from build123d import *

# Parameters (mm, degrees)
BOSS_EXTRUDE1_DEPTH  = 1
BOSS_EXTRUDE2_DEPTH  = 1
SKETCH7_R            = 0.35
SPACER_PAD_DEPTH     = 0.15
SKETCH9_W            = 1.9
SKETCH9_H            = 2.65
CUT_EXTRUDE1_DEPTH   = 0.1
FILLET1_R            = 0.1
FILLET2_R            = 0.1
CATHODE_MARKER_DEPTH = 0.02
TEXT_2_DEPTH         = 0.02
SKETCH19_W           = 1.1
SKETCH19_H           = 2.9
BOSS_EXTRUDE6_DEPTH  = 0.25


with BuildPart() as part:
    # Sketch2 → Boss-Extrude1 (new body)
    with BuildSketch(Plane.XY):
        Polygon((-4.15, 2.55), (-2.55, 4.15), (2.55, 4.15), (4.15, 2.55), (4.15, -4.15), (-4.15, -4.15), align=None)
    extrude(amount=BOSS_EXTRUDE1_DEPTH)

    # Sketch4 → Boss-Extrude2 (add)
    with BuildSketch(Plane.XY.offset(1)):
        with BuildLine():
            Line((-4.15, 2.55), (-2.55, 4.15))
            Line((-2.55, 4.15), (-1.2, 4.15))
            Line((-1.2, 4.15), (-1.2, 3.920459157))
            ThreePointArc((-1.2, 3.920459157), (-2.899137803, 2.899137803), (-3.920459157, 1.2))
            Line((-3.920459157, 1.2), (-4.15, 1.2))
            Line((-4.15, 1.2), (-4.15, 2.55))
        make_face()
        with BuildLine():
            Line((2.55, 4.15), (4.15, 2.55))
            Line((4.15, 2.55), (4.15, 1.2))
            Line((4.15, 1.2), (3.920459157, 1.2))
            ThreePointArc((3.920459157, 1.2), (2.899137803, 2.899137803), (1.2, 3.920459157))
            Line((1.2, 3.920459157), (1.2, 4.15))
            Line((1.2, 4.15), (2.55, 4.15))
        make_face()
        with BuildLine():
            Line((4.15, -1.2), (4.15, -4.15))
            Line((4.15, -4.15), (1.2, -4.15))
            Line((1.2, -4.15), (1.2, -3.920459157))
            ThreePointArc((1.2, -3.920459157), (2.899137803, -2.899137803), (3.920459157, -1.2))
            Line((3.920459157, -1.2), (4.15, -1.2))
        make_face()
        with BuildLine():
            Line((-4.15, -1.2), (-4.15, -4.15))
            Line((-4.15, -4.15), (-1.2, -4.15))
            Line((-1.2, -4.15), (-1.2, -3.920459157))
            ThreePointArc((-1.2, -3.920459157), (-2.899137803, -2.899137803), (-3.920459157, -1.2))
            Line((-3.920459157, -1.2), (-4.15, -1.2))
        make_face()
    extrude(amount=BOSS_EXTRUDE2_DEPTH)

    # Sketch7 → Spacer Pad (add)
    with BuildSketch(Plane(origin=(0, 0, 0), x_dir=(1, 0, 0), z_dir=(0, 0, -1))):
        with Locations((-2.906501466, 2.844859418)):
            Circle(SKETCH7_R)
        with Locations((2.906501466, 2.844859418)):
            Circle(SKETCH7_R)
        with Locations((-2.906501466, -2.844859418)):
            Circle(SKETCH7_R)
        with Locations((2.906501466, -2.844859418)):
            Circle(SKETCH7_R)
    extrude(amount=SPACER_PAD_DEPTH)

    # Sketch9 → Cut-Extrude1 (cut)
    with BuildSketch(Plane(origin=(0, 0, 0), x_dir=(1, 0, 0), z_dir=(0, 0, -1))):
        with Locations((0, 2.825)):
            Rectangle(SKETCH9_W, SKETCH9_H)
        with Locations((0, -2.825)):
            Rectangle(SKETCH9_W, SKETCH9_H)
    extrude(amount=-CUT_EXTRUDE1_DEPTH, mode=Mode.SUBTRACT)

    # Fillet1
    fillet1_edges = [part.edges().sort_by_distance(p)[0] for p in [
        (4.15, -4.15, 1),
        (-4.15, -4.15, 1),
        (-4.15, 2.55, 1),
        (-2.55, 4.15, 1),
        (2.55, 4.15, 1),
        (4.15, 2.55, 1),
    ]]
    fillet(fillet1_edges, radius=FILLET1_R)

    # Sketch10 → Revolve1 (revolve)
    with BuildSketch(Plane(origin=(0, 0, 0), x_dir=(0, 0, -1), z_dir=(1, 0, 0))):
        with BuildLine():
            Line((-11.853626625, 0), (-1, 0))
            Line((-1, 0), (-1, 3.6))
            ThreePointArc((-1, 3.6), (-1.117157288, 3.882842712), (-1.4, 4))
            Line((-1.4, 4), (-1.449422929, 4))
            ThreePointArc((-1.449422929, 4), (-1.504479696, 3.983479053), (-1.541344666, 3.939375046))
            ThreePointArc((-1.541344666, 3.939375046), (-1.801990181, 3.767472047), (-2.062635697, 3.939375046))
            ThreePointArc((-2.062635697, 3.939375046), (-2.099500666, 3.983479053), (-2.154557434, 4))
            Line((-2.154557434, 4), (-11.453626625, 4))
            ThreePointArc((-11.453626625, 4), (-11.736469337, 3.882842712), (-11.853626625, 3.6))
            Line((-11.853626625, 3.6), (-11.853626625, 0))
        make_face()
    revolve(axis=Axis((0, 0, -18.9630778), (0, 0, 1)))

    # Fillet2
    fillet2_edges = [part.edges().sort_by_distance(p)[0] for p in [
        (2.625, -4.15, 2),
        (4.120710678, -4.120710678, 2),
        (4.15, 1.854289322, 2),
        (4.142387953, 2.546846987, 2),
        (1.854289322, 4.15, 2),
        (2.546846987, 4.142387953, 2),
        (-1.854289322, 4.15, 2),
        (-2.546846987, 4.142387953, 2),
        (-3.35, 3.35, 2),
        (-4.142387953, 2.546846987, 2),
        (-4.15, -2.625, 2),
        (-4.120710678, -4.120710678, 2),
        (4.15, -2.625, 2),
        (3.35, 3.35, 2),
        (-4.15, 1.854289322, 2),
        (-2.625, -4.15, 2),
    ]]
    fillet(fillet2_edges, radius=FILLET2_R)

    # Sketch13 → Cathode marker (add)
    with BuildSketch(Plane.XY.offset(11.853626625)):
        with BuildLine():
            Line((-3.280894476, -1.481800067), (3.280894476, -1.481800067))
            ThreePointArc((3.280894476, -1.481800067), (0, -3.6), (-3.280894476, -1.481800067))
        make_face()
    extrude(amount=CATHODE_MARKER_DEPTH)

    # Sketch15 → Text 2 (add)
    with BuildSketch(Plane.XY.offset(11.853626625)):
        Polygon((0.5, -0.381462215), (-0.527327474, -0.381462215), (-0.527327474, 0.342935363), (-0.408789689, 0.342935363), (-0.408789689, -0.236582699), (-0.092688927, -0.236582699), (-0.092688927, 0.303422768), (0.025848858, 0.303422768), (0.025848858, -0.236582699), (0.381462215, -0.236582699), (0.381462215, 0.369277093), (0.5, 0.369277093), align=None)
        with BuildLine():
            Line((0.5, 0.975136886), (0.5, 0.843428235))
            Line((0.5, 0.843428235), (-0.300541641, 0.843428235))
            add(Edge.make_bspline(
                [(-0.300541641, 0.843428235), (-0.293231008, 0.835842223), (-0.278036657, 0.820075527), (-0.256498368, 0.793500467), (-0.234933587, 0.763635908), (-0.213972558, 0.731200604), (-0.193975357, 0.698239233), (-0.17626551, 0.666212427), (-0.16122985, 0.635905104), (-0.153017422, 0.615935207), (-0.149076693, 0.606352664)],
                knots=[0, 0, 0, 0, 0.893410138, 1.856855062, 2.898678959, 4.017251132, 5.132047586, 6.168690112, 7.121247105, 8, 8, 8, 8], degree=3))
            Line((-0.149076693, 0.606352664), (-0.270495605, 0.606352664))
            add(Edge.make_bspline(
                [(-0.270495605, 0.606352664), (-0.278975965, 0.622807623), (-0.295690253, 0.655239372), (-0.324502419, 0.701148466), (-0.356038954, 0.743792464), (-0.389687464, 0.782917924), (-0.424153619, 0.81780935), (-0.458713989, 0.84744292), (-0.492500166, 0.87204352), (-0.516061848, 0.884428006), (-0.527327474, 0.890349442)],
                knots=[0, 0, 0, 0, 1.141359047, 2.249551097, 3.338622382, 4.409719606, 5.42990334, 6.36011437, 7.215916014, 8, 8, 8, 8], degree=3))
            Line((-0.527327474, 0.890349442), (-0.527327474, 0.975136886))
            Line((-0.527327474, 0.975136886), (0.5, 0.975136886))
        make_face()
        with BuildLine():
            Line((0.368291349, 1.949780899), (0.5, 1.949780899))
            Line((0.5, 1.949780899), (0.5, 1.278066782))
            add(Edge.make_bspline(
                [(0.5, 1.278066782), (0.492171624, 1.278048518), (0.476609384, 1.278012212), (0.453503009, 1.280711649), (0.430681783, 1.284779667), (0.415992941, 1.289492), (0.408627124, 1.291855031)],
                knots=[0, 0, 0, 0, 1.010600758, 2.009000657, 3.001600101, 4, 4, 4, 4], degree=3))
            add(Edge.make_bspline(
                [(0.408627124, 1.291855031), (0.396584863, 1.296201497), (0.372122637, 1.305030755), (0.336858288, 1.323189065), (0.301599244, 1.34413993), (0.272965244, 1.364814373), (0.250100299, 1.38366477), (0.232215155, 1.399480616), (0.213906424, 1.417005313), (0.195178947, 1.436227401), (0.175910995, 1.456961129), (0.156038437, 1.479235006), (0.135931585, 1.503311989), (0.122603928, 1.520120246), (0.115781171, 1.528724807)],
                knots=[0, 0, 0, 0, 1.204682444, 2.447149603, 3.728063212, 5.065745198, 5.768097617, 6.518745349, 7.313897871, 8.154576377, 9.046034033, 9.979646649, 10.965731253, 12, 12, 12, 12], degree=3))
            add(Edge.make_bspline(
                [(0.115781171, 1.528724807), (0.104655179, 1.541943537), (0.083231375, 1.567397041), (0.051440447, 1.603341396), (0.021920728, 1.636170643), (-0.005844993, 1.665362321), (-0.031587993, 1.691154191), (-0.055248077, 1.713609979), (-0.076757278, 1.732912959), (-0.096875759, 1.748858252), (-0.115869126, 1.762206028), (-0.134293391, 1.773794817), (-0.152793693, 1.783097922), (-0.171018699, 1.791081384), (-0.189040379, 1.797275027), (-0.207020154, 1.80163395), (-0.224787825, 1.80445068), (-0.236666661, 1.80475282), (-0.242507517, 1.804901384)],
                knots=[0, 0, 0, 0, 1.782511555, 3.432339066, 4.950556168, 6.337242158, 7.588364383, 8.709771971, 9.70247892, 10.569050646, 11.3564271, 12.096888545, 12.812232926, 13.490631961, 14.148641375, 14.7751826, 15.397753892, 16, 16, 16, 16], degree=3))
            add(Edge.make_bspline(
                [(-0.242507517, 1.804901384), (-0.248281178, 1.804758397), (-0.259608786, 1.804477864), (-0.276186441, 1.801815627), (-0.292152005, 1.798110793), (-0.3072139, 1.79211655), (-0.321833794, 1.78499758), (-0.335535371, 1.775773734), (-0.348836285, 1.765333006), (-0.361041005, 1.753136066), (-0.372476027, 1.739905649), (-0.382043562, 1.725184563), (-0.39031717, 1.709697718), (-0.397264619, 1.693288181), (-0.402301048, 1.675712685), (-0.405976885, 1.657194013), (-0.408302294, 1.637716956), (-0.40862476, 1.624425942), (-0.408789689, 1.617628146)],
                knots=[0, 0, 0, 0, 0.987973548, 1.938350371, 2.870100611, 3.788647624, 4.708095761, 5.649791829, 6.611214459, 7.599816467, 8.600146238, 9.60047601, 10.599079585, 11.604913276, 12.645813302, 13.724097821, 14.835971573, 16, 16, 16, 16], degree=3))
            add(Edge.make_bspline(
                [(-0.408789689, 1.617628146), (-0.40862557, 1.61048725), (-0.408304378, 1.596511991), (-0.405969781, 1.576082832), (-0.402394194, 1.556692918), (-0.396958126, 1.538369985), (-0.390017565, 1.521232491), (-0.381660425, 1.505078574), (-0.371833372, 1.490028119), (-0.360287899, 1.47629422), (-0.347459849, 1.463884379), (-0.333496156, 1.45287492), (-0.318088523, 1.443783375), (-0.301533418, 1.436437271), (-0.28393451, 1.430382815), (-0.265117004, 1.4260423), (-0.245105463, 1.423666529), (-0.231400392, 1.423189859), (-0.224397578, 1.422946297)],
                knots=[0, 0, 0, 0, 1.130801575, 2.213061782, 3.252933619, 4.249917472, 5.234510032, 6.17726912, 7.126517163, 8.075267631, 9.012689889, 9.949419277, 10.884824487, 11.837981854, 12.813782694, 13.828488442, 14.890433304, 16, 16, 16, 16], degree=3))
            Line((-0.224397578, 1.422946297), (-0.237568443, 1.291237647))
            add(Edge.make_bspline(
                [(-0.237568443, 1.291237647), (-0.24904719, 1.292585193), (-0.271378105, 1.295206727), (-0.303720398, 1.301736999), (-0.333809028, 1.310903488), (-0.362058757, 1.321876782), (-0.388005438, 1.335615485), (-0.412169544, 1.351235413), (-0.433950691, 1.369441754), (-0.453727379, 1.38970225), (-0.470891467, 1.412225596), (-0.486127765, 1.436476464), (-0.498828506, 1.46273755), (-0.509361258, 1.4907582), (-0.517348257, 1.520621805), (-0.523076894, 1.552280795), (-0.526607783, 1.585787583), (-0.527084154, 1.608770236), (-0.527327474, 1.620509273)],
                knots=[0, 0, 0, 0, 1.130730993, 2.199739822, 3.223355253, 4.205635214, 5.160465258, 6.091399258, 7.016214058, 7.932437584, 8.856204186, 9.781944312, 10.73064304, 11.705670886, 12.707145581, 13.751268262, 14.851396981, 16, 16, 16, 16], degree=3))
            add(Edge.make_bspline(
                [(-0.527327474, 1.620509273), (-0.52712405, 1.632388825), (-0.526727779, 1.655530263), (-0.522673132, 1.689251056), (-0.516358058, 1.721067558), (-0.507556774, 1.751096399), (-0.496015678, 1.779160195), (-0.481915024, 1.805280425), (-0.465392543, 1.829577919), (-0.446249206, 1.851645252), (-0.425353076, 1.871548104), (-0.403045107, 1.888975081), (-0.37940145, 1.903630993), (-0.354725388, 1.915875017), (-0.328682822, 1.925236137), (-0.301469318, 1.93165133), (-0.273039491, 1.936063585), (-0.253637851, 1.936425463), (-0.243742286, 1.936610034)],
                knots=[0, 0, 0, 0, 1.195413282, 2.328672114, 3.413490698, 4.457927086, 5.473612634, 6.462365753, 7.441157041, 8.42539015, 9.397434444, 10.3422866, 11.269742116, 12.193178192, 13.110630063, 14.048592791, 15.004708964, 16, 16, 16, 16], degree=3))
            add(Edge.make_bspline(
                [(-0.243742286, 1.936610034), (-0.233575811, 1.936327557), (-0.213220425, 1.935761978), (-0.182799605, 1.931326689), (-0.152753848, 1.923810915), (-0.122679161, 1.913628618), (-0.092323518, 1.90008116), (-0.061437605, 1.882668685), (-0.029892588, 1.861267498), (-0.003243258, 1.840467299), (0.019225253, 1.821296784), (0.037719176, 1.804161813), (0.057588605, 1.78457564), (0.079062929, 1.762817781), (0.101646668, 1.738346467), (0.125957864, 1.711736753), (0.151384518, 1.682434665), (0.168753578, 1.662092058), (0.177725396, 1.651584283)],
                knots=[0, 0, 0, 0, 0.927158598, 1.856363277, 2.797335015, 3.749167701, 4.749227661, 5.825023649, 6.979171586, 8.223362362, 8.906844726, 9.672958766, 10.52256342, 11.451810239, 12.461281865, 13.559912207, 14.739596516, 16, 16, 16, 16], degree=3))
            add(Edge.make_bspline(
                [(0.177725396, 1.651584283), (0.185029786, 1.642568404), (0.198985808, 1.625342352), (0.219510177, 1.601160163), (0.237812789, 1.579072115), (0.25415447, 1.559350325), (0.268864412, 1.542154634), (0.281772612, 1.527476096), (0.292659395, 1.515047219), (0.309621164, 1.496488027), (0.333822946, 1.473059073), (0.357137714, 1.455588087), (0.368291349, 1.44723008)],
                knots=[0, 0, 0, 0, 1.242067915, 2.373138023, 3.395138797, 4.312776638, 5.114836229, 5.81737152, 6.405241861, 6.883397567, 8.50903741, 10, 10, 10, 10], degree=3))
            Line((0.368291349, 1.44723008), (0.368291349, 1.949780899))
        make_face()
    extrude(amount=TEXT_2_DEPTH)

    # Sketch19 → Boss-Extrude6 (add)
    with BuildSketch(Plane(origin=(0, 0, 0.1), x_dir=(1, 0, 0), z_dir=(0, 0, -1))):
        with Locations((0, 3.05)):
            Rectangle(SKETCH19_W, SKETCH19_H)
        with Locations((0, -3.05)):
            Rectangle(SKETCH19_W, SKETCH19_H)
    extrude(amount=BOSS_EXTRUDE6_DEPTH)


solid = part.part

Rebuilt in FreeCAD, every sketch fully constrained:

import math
import FreeCAD as App
import Part
import Sketcher

V = App.Vector
Q = App.Units.Quantity


def edges_at(feature, points):
    """Names of the edges that pass closest to the given points."""
    edges = feature.Shape.Edges
    near = lambda p: min(range(len(edges)), key=lambda i: edges[i].distToShape(Part.Vertex(*p))[0])
    return sorted({f"Edge{near(p) + 1}" for p in points})

doc = App.newDocument("Part")
body = doc.addObject("PartDesign::Body", "Body")

sketch1 = doc.addObject("Sketcher::SketchObject", "Sketch")
body.addObject(sketch1)
sketch1.AttachmentSupport = (doc.XY_Plane, [""])
sketch1.MapMode = "FlatFace"
sketch1.addGeometry([
    Part.LineSegment(V(-2.5, 4.2, 0), V(-4.2, 2.5, 0)),
    Part.LineSegment(V(-4.2, 2.5, 0), V(-4.2, -4.2, 0)),
    Part.LineSegment(V(-4.2, -4.2, 0), V(4.2, -4.2, 0)),
    Part.LineSegment(V(4.2, -4.2, 0), V(4.2, 2.5, 0)),
    Part.LineSegment(V(4.2, 2.5, 0), V(2.5, 4.2, 0)),
    Part.LineSegment(V(2.5, 4.2, 0), V(-2.5, 4.2, 0)),
], False)
sketch1.addConstraint([
    Sketcher.Constraint("Coincident", 0, 2, 1, 1),
    Sketcher.Constraint("Coincident", 1, 2, 2, 1),
    Sketcher.Constraint("Coincident", 2, 2, 3, 1),
    Sketcher.Constraint("Coincident", 3, 2, 4, 1),
    Sketcher.Constraint("Coincident", 4, 2, 5, 1),
    Sketcher.Constraint("Coincident", 5, 2, 0, 1),
    Sketcher.Constraint("Vertical", 1),
    Sketcher.Constraint("Horizontal", 2),
    Sketcher.Constraint("Vertical", 3),
    Sketcher.Constraint("Horizontal", 5),
    Sketcher.Constraint("Symmetric", 0, 2, 3, 2, -2),
    Sketcher.Constraint("Perpendicular", 0, 4),
    Sketcher.Constraint("Equal", 0, 4),
    Sketcher.Constraint("DistanceX", 2, 1, 2, 2, Q("8.3 mm")),
    Sketcher.Constraint("DistanceX", 5, 2, 5, 1, Q("5.1 mm")),
    Sketcher.Constraint("DistanceY", 1, 2, 1, 1, Q("6.7 mm")),
    Sketcher.Constraint("DistanceY", -1, 1, 0, 2, Q("2.55 mm")),
])
pad1 = doc.addObject("PartDesign::Pad", "Pad")
body.addObject(pad1)
pad1.Profile = sketch1
pad1.Length = 1

sketch2 = doc.addObject("Sketcher::SketchObject", "Sketch001")
body.addObject(sketch2)
sketch2.AttachmentSupport = (doc.XY_Plane, [""])
sketch2.MapMode = "FlatFace"
sketch2.AttachmentOffset = App.Placement(V(0, 0, 1), App.Rotation())
sketch2.addGeometry([
    Part.LineSegment(V(-2.55, 4.15, 0), V(-4.15, 2.55, 0)),
    Part.LineSegment(V(-4.15, 2.55, 0), V(-4.15, 1.2, 0)),
    Part.LineSegment(V(-4.15, 1.2, 0), V(-3.92, 1.2, 0)),
    Part.ArcOfCircle(Part.Circle(V(0, 0, 0), V(0, 0, 1), 4.1), math.radians(107), math.radians(163)),
    Part.LineSegment(V(-1.2, 3.92, 0), V(-1.2, 4.15, 0)),
    Part.LineSegment(V(-1.2, 4.15, 0), V(-2.55, 4.15, 0)),
    Part.LineSegment(V(4.15, 2.55, 0), V(2.55, 4.15, 0)),
    Part.LineSegment(V(2.55, 4.15, 0), V(1.2, 4.15, 0)),
    Part.LineSegment(V(1.2, 4.15, 0), V(1.2, 3.92, 0)),
    Part.ArcOfCircle(Part.Circle(V(0, 0, 0), V(0, 0, 1), 4.1), math.radians(17), math.radians(73)),
    Part.LineSegment(V(3.92, 1.2, 0), V(4.15, 1.2, 0)),
    Part.LineSegment(V(4.15, 1.2, 0), V(4.15, 2.55, 0)),
    Part.LineSegment(V(4.15, -4.15, 0), V(4.15, -1.2, 0)),
    Part.LineSegment(V(4.15, -1.2, 0), V(3.92, -1.2, 0)),
    Part.ArcOfCircle(Part.Circle(V(0, 0, 0), V(0, 0, 1), 4.1), math.radians(-73), math.radians(-17)),
    Part.LineSegment(V(1.2, -3.92, 0), V(1.2, -4.15, 0)),
    Part.LineSegment(V(1.2, -4.15, 0), V(4.15, -4.15, 0)),
    Part.LineSegment(V(-4.15, -1.2, 0), V(-4.15, -4.15, 0)),
    Part.LineSegment(V(-4.15, -4.15, 0), V(-1.2, -4.15, 0)),
    Part.LineSegment(V(-1.2, -4.15, 0), V(-1.2, -3.92, 0)),
    Part.ArcOfCircle(Part.Circle(V(0, 0, 0), V(0, 0, 1), 4.1), math.radians(-163), math.radians(-107)),
    Part.LineSegment(V(-3.92, -1.2, 0), V(-4.15, -1.2, 0)),
], False)
sketch2.addConstraint([
    Sketcher.Constraint("Coincident", 0, 2, 1, 1),
    Sketcher.Constraint("Coincident", 1, 2, 2, 1),
    Sketcher.Constraint("Coincident", 2, 2, 3, 2),
    Sketcher.Constraint("Coincident", 3, 1, 4, 1),
    Sketcher.Constraint("Coincident", 4, 2, 5, 1),
    Sketcher.Constraint("Coincident", 5, 2, 0, 1),
    Sketcher.Constraint("Coincident", 6, 2, 7, 1),
    Sketcher.Constraint("Coincident", 7, 2, 8, 1),
    Sketcher.Constraint("Coincident", 8, 2, 9, 2),
    Sketcher.Constraint("Coincident", 9, 1, 10, 1),
    Sketcher.Constraint("Coincident", 10, 2, 11, 1),
    Sketcher.Constraint("Coincident", 11, 2, 6, 1),
    Sketcher.Constraint("Coincident", 12, 2, 13, 1),
    Sketcher.Constraint("Coincident", 13, 2, 14, 2),
    Sketcher.Constraint("Coincident", 14, 1, 15, 1),
    Sketcher.Constraint("Coincident", 15, 2, 16, 1),
    Sketcher.Constraint("Coincident", 16, 2, 12, 1),
    Sketcher.Constraint("Coincident", 17, 2, 18, 1),
    Sketcher.Constraint("Coincident", 18, 2, 19, 1),
    Sketcher.Constraint("Coincident", 19, 2, 20, 2),
    Sketcher.Constraint("Coincident", 20, 1, 21, 1),
    Sketcher.Constraint("Coincident", 21, 2, 17, 1),
    Sketcher.Constraint("Vertical", 1),
    Sketcher.Constraint("Horizontal", 2),
    Sketcher.Constraint("Vertical", 4),
    Sketcher.Constraint("Horizontal", 5),
    Sketcher.Constraint("Horizontal", 7),
    Sketcher.Constraint("Vertical", 8),
    Sketcher.Constraint("Horizontal", 10),
    Sketcher.Constraint("Vertical", 11),
    Sketcher.Constraint("Vertical", 12),
    Sketcher.Constraint("Horizontal", 13),
    Sketcher.Constraint("Vertical", 15),
    Sketcher.Constraint("Horizontal", 16),
    Sketcher.Constraint("Vertical", 17),
    Sketcher.Constraint("Horizontal", 18),
    Sketcher.Constraint("Vertical", 19),
    Sketcher.Constraint("Horizontal", 21),
    Sketcher.Constraint("Coincident", 3, 3, -1, 1),
    Sketcher.Constraint("Coincident", 9, 3, -1, 1),
    Sketcher.Constraint("Coincident", 14, 3, -1, 1),
    Sketcher.Constraint("Coincident", 20, 3, -1, 1),
    Sketcher.Constraint("Equal", 3, 9),
    Sketcher.Constraint("Equal", 9, 14),
    Sketcher.Constraint("Equal", 14, 20),
    Sketcher.Constraint("Symmetric", 1, 2, 12, 2, -1, 1),
    Sketcher.Constraint("Symmetric", 4, 2, 15, 2, -1, 1),
    Sketcher.Constraint("Symmetric", 7, 2, 18, 2, -1, 1),
    Sketcher.Constraint("Symmetric", 10, 2, 21, 2, -1, 1),
    Sketcher.Constraint("Symmetric", 5, 2, 6, 2, -2),
    Sketcher.Constraint("Symmetric", 1, 2, 10, 2, -2),
    Sketcher.Constraint("Perpendicular", 0, 6),
    Sketcher.Constraint("Horizontal", 3, 1, 8, 2),
    Sketcher.Constraint("Horizontal", 0, 2, 11, 2),
    Sketcher.Constraint("Equal", 7, 1),
    Sketcher.Constraint("Equal", 21, 4),
    Sketcher.Constraint("Radius", 3, Q("4.1 mm")),
    Sketcher.Constraint("DistanceX", 5, 2, 5, 1, Q("1.35 mm")),
    Sketcher.Constraint("DistanceX", 16, 1, 16, 2, Q("2.95 mm")),
    Sketcher.Constraint("DistanceY", -1, 1, 1, 2, Q("1.2 mm")),
])
pad2 = doc.addObject("PartDesign::Pad", "Pad001")
body.addObject(pad2)
pad2.Profile = sketch2
pad2.Length = 1

sketch3 = doc.addObject("Sketcher::SketchObject", "Sketch002")
body.addObject(sketch3)
sketch3.AttachmentSupport = (doc.XY_Plane, [""])
sketch3.MapMode = "FlatFace"
sketch3.addGeometry([
    Part.Circle(V(-2.91, -2.84, 0), V(0, 0, 1), 0.35),
    Part.Circle(V(2.91, -2.84, 0), V(0, 0, 1), 0.35),
    Part.Circle(V(-2.91, 2.84, 0), V(0, 0, 1), 0.35),
    Part.Circle(V(2.91, 2.84, 0), V(0, 0, 1), 0.35),
], False)
sketch3.addConstraint([
    Sketcher.Constraint("Equal", 0, 1),
    Sketcher.Constraint("Equal", 1, 2),
    Sketcher.Constraint("Equal", 2, 3),
    Sketcher.Constraint("Symmetric", 1, 3, 2, 3, -1, 1),
    Sketcher.Constraint("Symmetric", 0, 3, 3, 3, -1, 1),
    Sketcher.Constraint("Symmetric", 0, 3, 1, 3, -2),
    Sketcher.Constraint("Diameter", 0, Q("0.7 mm")),
    Sketcher.Constraint("DistanceX", 0, 3, -1, 1, Q("2.906501 mm")),
    Sketcher.Constraint("DistanceY", 0, 3, -1, 1, Q("2.844859 mm")),
])
pad3 = doc.addObject("PartDesign::Pad", "Pad002")
body.addObject(pad3)
pad3.Profile = sketch3
pad3.Length = 0.15
pad3.Reversed = True

sketch4 = doc.addObject("Sketcher::SketchObject", "Sketch003")
body.addObject(sketch4)
sketch4.AttachmentSupport = (doc.XY_Plane, [""])
sketch4.MapMode = "FlatFace"
sketch4.addGeometry([
    Part.LineSegment(V(-0.9, -4.2, 0), V(-0.9, -1.5, 0)),
    Part.LineSegment(V(-0.9, -1.5, 0), V(0.9, -1.5, 0)),
    Part.LineSegment(V(0.9, -1.5, 0), V(0.9, -4.2, 0)),
    Part.LineSegment(V(0.9, -4.2, 0), V(-0.9, -4.2, 0)),
    Part.LineSegment(V(-0.9, 1.5, 0), V(-0.9, 4.2, 0)),
    Part.LineSegment(V(-0.9, 4.2, 0), V(0.9, 4.2, 0)),
    Part.LineSegment(V(0.9, 4.2, 0), V(0.9, 1.5, 0)),
    Part.LineSegment(V(0.9, 1.5, 0), V(-0.9, 1.5, 0)),
], False)
sketch4.addConstraint([
    Sketcher.Constraint("Coincident", 0, 2, 1, 1),
    Sketcher.Constraint("Coincident", 1, 2, 2, 1),
    Sketcher.Constraint("Coincident", 2, 2, 3, 1),
    Sketcher.Constraint("Coincident", 3, 2, 0, 1),
    Sketcher.Constraint("Coincident", 4, 2, 5, 1),
    Sketcher.Constraint("Coincident", 5, 2, 6, 1),
    Sketcher.Constraint("Coincident", 6, 2, 7, 1),
    Sketcher.Constraint("Coincident", 7, 2, 4, 1),
    Sketcher.Constraint("Vertical", 0),
    Sketcher.Constraint("Horizontal", 1),
    Sketcher.Constraint("Vertical", 2),
    Sketcher.Constraint("Horizontal", 3),
    Sketcher.Constraint("Vertical", 4),
    Sketcher.Constraint("Horizontal", 5),
    Sketcher.Constraint("Vertical", 6),
    Sketcher.Constraint("Horizontal", 7),
    Sketcher.Constraint("Symmetric", 2, 2, 4, 2, -1, 1),
    Sketcher.Constraint("Symmetric", 0, 2, 6, 2, -1, 1),
    Sketcher.Constraint("Vertical", 3, 2, 4, 2),
    Sketcher.Constraint("DistanceX", 1, 1, 1, 2, Q("1.9 mm")),
    Sketcher.Constraint("DistanceY", 1, 2, 6, 2, Q("3 mm")),
    Sketcher.Constraint("DistanceY", 0, 1, 0, 2, Q("2.65 mm")),
])
pocket1 = doc.addObject("PartDesign::Pocket", "Pocket")
body.addObject(pocket1)
pocket1.Profile = sketch4
pocket1.Length = 0.1
pocket1.Reversed = True
doc.recompute()

fillet = doc.addObject("PartDesign::Fillet", "Fillet")
body.addObject(fillet)
fillet.Base = (pocket1, edges_at(pocket1, [
    (4.15, -4.15, 1),
    (-4.15, -4.15, 1),
    (-4.15, 2.55, 1),
    (-2.55, 4.15, 1),
    (2.55, 4.15, 1),
    (4.15, 2.55, 1),
]))
fillet.Radius = 0.1

sketch5 = doc.addObject("Sketcher::SketchObject", "Sketch004")
body.addObject(sketch5)
sketch5.AttachmentSupport = (doc.YZ_Plane, [""])
sketch5.MapMode = "FlatFace"
sketch5.addGeometry([
    Part.LineSegment(V(0, 11.854, 0), V(0, 1, 0)),
    Part.LineSegment(V(0, 1, 0), V(3.6, 1, 0)),
    Part.ArcOfCircle(Part.Circle(V(3.6, 1.4, 0), V(0, 0, 1), 0.4), math.radians(-90), math.radians(0)),
    Part.LineSegment(V(4, 1.4, 0), V(4, 1.449, 0)),
    Part.ArcOfCircle(Part.Circle(V(3.9, 1.449, 0), V(0, 0, 1), 0.1), math.radians(0), math.radians(67)),
    Part.ArcOfCircle(Part.Circle(V(4.051, 1.802, 0), V(0, 0, 1), 0.284), math.radians(113), math.radians(247)),
    Part.ArcOfCircle(Part.Circle(V(3.9, 2.155, 0), V(0, 0, 1), 0.1), math.radians(-67), math.radians(0)),
    Part.LineSegment(V(4, 2.155, 0), V(4, 11.454, 0)),
    Part.ArcOfCircle(Part.Circle(V(3.6, 11.454, 0), V(0, 0, 1), 0.4), math.radians(0), math.radians(90)),
    Part.LineSegment(V(3.6, 11.854, 0), V(0, 11.854, 0)),
], False)
sketch5.addConstraint([
    Sketcher.Constraint("Coincident", 0, 2, 1, 1),
    Sketcher.Constraint("Tangent", 1, 2, 2, 1),
    Sketcher.Constraint("Tangent", 2, 2, 3, 1),
    Sketcher.Constraint("Tangent", 3, 2, 4, 1),
    Sketcher.Constraint("Tangent", 4, 2, 5, 2),
    Sketcher.Constraint("Tangent", 5, 1, 6, 1),
    Sketcher.Constraint("Tangent", 6, 2, 7, 1),
    Sketcher.Constraint("Tangent", 7, 2, 8, 1),
    Sketcher.Constraint("Tangent", 8, 2, 9, 1),
    Sketcher.Constraint("Coincident", 9, 2, 0, 1),
    Sketcher.Constraint("Vertical", 0),
    Sketcher.Constraint("Horizontal", 1),
    Sketcher.Constraint("Vertical", 3),
    Sketcher.Constraint("Vertical", 7),
    Sketcher.Constraint("Horizontal", 9),
    Sketcher.Constraint("Equal", 4, 6),
    Sketcher.Constraint("Equal", 2, 8),
    Sketcher.Constraint("PointOnObject", 0, 2, -2),
    Sketcher.Constraint("Vertical", 4, 3, 6, 3),
    Sketcher.Constraint("Radius", 2, Q("0.4 mm")),
    Sketcher.Constraint("Radius", 4, Q("0.1 mm")),
    Sketcher.Constraint("DistanceX", 1, 1, 1, 2, Q("3.6 mm")),
    Sketcher.Constraint("DistanceY", -1, 1, 0, 2, Q("1 mm")),
    Sketcher.Constraint("Radius", 5, Q("0.283552 mm")),
    Sketcher.Constraint("DistanceY", 7, 1, 7, 2, Q("9.299069 mm")),
    Sketcher.Constraint("DistanceY", 0, 2, 0, 1, Q("10.853627 mm")),
    Sketcher.Constraint("DistanceY", 3, 1, 3, 2, Q("0.049423 mm")),
])
revolution = doc.addObject("PartDesign::Revolution", "Revolution")
body.addObject(revolution)
revolution.Profile = sketch5
revolution.ReferenceAxis = (sketch5, ["V_Axis"])
revolution.Angle = 360
doc.recompute()

fillet2 = doc.addObject("PartDesign::Fillet", "Fillet001")
body.addObject(fillet2)
fillet2.Base = (revolution, edges_at(revolution, [
    (2.625, -4.15, 2),
    (4.121, -4.121, 2),
    (4.15, 1.854, 2),
    (4.142, 2.547, 2),
    (1.854, 4.15, 2),
    (2.547, 4.142, 2),
    (-1.854, 4.15, 2),
    (-2.547, 4.142, 2),
    (-3.35, 3.35, 2),
    (-4.142, 2.547, 2),
    (-4.15, -2.625, 2),
    (-4.121, -4.121, 2),
    (4.15, -2.625, 2),
    (3.35, 3.35, 2),
    (-4.15, 1.854, 2),
    (-2.625, -4.15, 2),
]))
fillet2.Radius = 0.1

sketch6 = doc.addObject("Sketcher::SketchObject", "Sketch005")
body.addObject(sketch6)
sketch6.AttachmentSupport = (doc.XY_Plane, [""])
sketch6.MapMode = "FlatFace"
sketch6.AttachmentOffset = App.Placement(V(0, 0, 11.853627), App.Rotation())
sketch6.addGeometry([
    Part.LineSegment(V(3.3, -1.5, 0), V(-3.3, -1.5, 0)),
    Part.ArcOfCircle(Part.Circle(V(0, 0, 0), V(0, 0, 1), 3.6), math.radians(-156), math.radians(-24)),
], False)
sketch6.addConstraint([
    Sketcher.Constraint("Coincident", 0, 1, 1, 2),
    Sketcher.Constraint("Coincident", 1, 1, 0, 2),
    Sketcher.Constraint("Horizontal", 0),
    Sketcher.Constraint("Coincident", 1, 3, -1, 1),
    Sketcher.Constraint("Radius", 1, Q("3.6 mm")),
    Sketcher.Constraint("DistanceX", 0, 2, 0, 1, Q("6.561789 mm")),
])
pad4 = doc.addObject("PartDesign::Pad", "Pad003")
body.addObject(pad4)
pad4.Profile = sketch6
pad4.Length = 0.02

sketch7 = doc.addObject("Sketcher::SketchObject", "Sketch006")
body.addObject(sketch7)
sketch7.AttachmentSupport = (doc.XY_Plane, [""])
sketch7.MapMode = "FlatFace"
sketch7.AttachmentOffset = App.Placement(V(0, 0, 11.853627), App.Rotation())
sketch7.addGeometry([
    Part.LineSegment(V(-0.527327, -0.381462, 0), V(0.5, -0.381462, 0)),
    Part.LineSegment(V(0.5, -0.381462, 0), V(0.5, 0.369277, 0)),
    Part.LineSegment(V(0.5, 0.369277, 0), V(0.381462, 0.369277, 0)),
    Part.LineSegment(V(0.381462, 0.369277, 0), V(0.381462, -0.236583, 0)),
    Part.LineSegment(V(0.381462, -0.236583, 0), V(0.025849, -0.236583, 0)),
    Part.LineSegment(V(0.025849, -0.236583, 0), V(0.025849, 0.303423, 0)),
    Part.LineSegment(V(0.025849, 0.303423, 0), V(-0.092689, 0.303423, 0)),
    Part.LineSegment(V(-0.092689, 0.303423, 0), V(-0.092689, -0.236583, 0)),
    Part.LineSegment(V(-0.092689, -0.236583, 0), V(-0.40879, -0.236583, 0)),
    Part.LineSegment(V(-0.40879, -0.236583, 0), V(-0.40879, 0.342935, 0)),
    Part.LineSegment(V(-0.40879, 0.342935, 0), V(-0.527327, 0.342935, 0)),
    Part.LineSegment(V(-0.527327, 0.342935, 0), V(-0.527327, -0.381462, 0)),
    Part.LineSegment(V(0.5, 0.843428, 0), V(0.5, 0.975137, 0)),
    Part.LineSegment(V(0.5, 0.975137, 0), V(-0.527327, 0.975137, 0)),
    Part.LineSegment(V(-0.527327, 0.975137, 0), V(-0.527327, 0.890349, 0)),
    Part.BSplineCurve([V(-0.270496, 0.606353, 0), V(-0.278976, 0.622808, 0), V(-0.29569, 0.655239, 0), V(-0.324502, 0.701148, 0), V(-0.356039, 0.743792, 0), V(-0.389687, 0.782918, 0), V(-0.424154, 0.817809, 0), V(-0.458714, 0.847443, 0), V(-0.4925, 0.872044, 0), V(-0.516062, 0.884428, 0), V(-0.527327, 0.890349, 0)], [4, 1, 1, 1, 1, 1, 1, 1, 4], [0, 1.141359047, 2.249551097, 3.338622382, 4.409719606, 5.42990334, 6.36011437, 7.215916014, 8], False, 3, [1, 1, 1, 1, 1, 1, 1, 1, 1, 1, 1], False),
    Part.LineSegment(V(-0.270496, 0.606353, 0), V(-0.149077, 0.606353, 0)),
    Part.BSplineCurve([V(-0.300542, 0.843428, 0), V(-0.293231, 0.835842, 0), V(-0.278037, 0.820076, 0), V(-0.256498, 0.7935, 0), V(-0.234934, 0.763636, 0), V(-0.213973, 0.731201, 0), V(-0.193975, 0.698239, 0), V(-0.176266, 0.666212, 0), V(-0.16123, 0.635905, 0), V(-0.153017, 0.615935, 0), V(-0.149077, 0.606353, 0)], [4, 1, 1, 1, 1, 1, 1, 1, 4], [0, 0.893410138, 1.856855062, 2.898678959, 4.017251132, 5.132047586, 6.168690112, 7.121247105, 8], False, 3, [1, 1, 1, 1, 1, 1, 1, 1, 1, 1, 1], False),
    Part.LineSegment(V(-0.300542, 0.843428, 0), V(0.5, 0.843428, 0)),
    Part.LineSegment(V(0.5, 1.949781, 0), V(0.368291, 1.949781, 0)),
    Part.LineSegment(V(0.368291, 1.949781, 0), V(0.368291, 1.44723, 0)),
    Part.BSplineCurve([V(0.177725, 1.651584, 0), V(0.18503, 1.642568, 0), V(0.198986, 1.625342, 0), V(0.21951, 1.60116, 0), V(0.237813, 1.579072, 0), V(0.254154, 1.55935, 0), V(0.268864, 1.542155, 0), V(0.281773, 1.527476, 0), V(0.292659, 1.515047, 0), V(0.309621, 1.496488, 0), V(0.333823, 1.473059, 0), V(0.357138, 1.455588, 0), V(0.368291, 1.44723, 0)], [4, 1, 1, 1, 1, 1, 1, 1, 1, 1, 4], [0, 1.242067915, 2.373138023, 3.395138797, 4.312776638, 5.114836229, 5.81737152, 6.405241861, 6.883397567, 8.50903741, 10], False, 3, [1, 1, 1, 1, 1, 1, 1, 1, 1, 1, 1, 1, 1], False),
    Part.BSplineCurve([V(-0.243742, 1.93661, 0), V(-0.233576, 1.936328, 0), V(-0.21322, 1.935762, 0), V(-0.1828, 1.931327, 0), V(-0.152754, 1.923811, 0), V(-0.122679, 1.913629, 0), V(-0.092324, 1.900081, 0), V(-0.061438, 1.882669, 0), V(-0.029893, 1.861267, 0), V(-0.003243, 1.840467, 0), V(0.019225, 1.821297, 0), V(0.037719, 1.804162, 0), V(0.057589, 1.784576, 0), V(0.079063, 1.762818, 0), V(0.101647, 1.738346, 0), V(0.125958, 1.711737, 0), V(0.151385, 1.682435, 0), V(0.168754, 1.662092, 0), V(0.177725, 1.651584, 0)], [4, 1, 1, 1, 1, 1, 1, 1, 1, 1, 1, 1, 1, 1, 1, 1, 4], [0, 0.927158598, 1.856363277, 2.797335015, 3.749167701, 4.749227661, 5.825023649, 6.979171586, 8.223362362, 8.906844726, 9.672958766, 10.52256342, 11.451810239, 12.461281865, 13.559912207, 14.739596516, 16], False, 3, [1, 1, 1, 1, 1, 1, 1, 1, 1, 1, 1, 1, 1, 1, 1, 1, 1, 1, 1], False),
    Part.BSplineCurve([V(-0.527327, 1.620509, 0), V(-0.527124, 1.632389, 0), V(-0.526728, 1.65553, 0), V(-0.522673, 1.689251, 0), V(-0.516358, 1.721068, 0), V(-0.507557, 1.751096, 0), V(-0.496016, 1.77916, 0), V(-0.481915, 1.80528, 0), V(-0.465393, 1.829578, 0), V(-0.446249, 1.851645, 0), V(-0.425353, 1.871548, 0), V(-0.403045, 1.888975, 0), V(-0.379401, 1.903631, 0), V(-0.354725, 1.915875, 0), V(-0.328683, 1.925236, 0), V(-0.301469, 1.931651, 0), V(-0.273039, 1.936064, 0), V(-0.253638, 1.936425, 0), V(-0.243742, 1.93661, 0)], [4, 1, 1, 1, 1, 1, 1, 1, 1, 1, 1, 1, 1, 1, 1, 1, 4], [0, 1.195413282, 2.328672114, 3.413490698, 4.457927086, 5.473612634, 6.462365753, 7.441157041, 8.42539015, 9.397434444, 10.3422866, 11.269742116, 12.193178192, 13.110630063, 14.048592791, 15.004708964, 16], False, 3, [1, 1, 1, 1, 1, 1, 1, 1, 1, 1, 1, 1, 1, 1, 1, 1, 1, 1, 1], False),
    Part.BSplineCurve([V(-0.237568, 1.291238, 0), V(-0.249047, 1.292585, 0), V(-0.271378, 1.295207, 0), V(-0.30372, 1.301737, 0), V(-0.333809, 1.310903, 0), V(-0.362059, 1.321877, 0), V(-0.388005, 1.335615, 0), V(-0.41217, 1.351235, 0), V(-0.433951, 1.369442, 0), V(-0.453727, 1.389702, 0), V(-0.470891, 1.412226, 0), V(-0.486128, 1.436476, 0), V(-0.498829, 1.462738, 0), V(-0.509361, 1.490758, 0), V(-0.517348, 1.520622, 0), V(-0.523077, 1.552281, 0), V(-0.526608, 1.585788, 0), V(-0.527084, 1.60877, 0), V(-0.527327, 1.620509, 0)], [4, 1, 1, 1, 1, 1, 1, 1, 1, 1, 1, 1, 1, 1, 1, 1, 4], [0, 1.130730993, 2.199739822, 3.223355253, 4.205635214, 5.160465258, 6.091399258, 7.016214058, 7.932437584, 8.856204186, 9.781944312, 10.73064304, 11.705670886, 12.707145581, 13.751268262, 14.851396981, 16], False, 3, [1, 1, 1, 1, 1, 1, 1, 1, 1, 1, 1, 1, 1, 1, 1, 1, 1, 1, 1], False),
    Part.LineSegment(V(-0.237568, 1.291238, 0), V(-0.224398, 1.422946, 0)),
    Part.BSplineCurve([V(-0.40879, 1.617628, 0), V(-0.408626, 1.610487, 0), V(-0.408304, 1.596512, 0), V(-0.40597, 1.576083, 0), V(-0.402394, 1.556693, 0), V(-0.396958, 1.53837, 0), V(-0.390018, 1.521232, 0), V(-0.38166, 1.505079, 0), V(-0.371833, 1.490028, 0), V(-0.360288, 1.476294, 0), V(-0.34746, 1.463884, 0), V(-0.333496, 1.452875, 0), V(-0.318089, 1.443783, 0), V(-0.301533, 1.436437, 0), V(-0.283935, 1.430383, 0), V(-0.265117, 1.426042, 0), V(-0.245105, 1.423667, 0), V(-0.2314, 1.42319, 0), V(-0.224398, 1.422946, 0)], [4, 1, 1, 1, 1, 1, 1, 1, 1, 1, 1, 1, 1, 1, 1, 1, 4], [0, 1.130801575, 2.213061782, 3.252933619, 4.249917472, 5.234510032, 6.17726912, 7.126517163, 8.075267631, 9.012689889, 9.949419277, 10.884824487, 11.837981854, 12.813782694, 13.828488442, 14.890433304, 16], False, 3, [1, 1, 1, 1, 1, 1, 1, 1, 1, 1, 1, 1, 1, 1, 1, 1, 1, 1, 1], False),
    Part.BSplineCurve([V(-0.242508, 1.804901, 0), V(-0.248281, 1.804758, 0), V(-0.259609, 1.804478, 0), V(-0.276186, 1.801816, 0), V(-0.292152, 1.798111, 0), V(-0.307214, 1.792117, 0), V(-0.321834, 1.784998, 0), V(-0.335535, 1.775774, 0), V(-0.348836, 1.765333, 0), V(-0.361041, 1.753136, 0), V(-0.372476, 1.739906, 0), V(-0.382044, 1.725185, 0), V(-0.390317, 1.709698, 0), V(-0.397265, 1.693288, 0), V(-0.402301, 1.675713, 0), V(-0.405977, 1.657194, 0), V(-0.408302, 1.637717, 0), V(-0.408625, 1.624426, 0), V(-0.40879, 1.617628, 0)], [4, 1, 1, 1, 1, 1, 1, 1, 1, 1, 1, 1, 1, 1, 1, 1, 4], [0, 0.987973548, 1.938350371, 2.870100611, 3.788647624, 4.708095761, 5.649791829, 6.611214459, 7.599816467, 8.600146238, 9.60047601, 10.599079585, 11.604913276, 12.645813302, 13.724097821, 14.835971573, 16], False, 3, [1, 1, 1, 1, 1, 1, 1, 1, 1, 1, 1, 1, 1, 1, 1, 1, 1, 1, 1], False),
    Part.BSplineCurve([V(0.115781, 1.528725, 0), V(0.104655, 1.541944, 0), V(0.083231, 1.567397, 0), V(0.05144, 1.603341, 0), V(0.021921, 1.636171, 0), V(-0.005845, 1.665362, 0), V(-0.031588, 1.691154, 0), V(-0.055248, 1.71361, 0), V(-0.076757, 1.732913, 0), V(-0.096876, 1.748858, 0), V(-0.115869, 1.762206, 0), V(-0.134293, 1.773795, 0), V(-0.152794, 1.783098, 0), V(-0.171019, 1.791081, 0), V(-0.18904, 1.797275, 0), V(-0.20702, 1.801634, 0), V(-0.224788, 1.804451, 0), V(-0.236667, 1.804753, 0), V(-0.242508, 1.804901, 0)], [4, 1, 1, 1, 1, 1, 1, 1, 1, 1, 1, 1, 1, 1, 1, 1, 4], [0, 1.782511555, 3.432339066, 4.950556168, 6.337242158, 7.588364383, 8.709771971, 9.70247892, 10.569050646, 11.3564271, 12.096888545, 12.812232926, 13.490631961, 14.148641375, 14.7751826, 15.397753892, 16], False, 3, [1, 1, 1, 1, 1, 1, 1, 1, 1, 1, 1, 1, 1, 1, 1, 1, 1, 1, 1], False),
    Part.BSplineCurve([V(0.408627, 1.291855, 0), V(0.396585, 1.296201, 0), V(0.372123, 1.305031, 0), V(0.336858, 1.323189, 0), V(0.301599, 1.34414, 0), V(0.272965, 1.364814, 0), V(0.2501, 1.383665, 0), V(0.232215, 1.399481, 0), V(0.213906, 1.417005, 0), V(0.195179, 1.436227, 0), V(0.175911, 1.456961, 0), V(0.156038, 1.479235, 0), V(0.135932, 1.503312, 0), V(0.122604, 1.52012, 0), V(0.115781, 1.528725, 0)], [4, 1, 1, 1, 1, 1, 1, 1, 1, 1, 1, 1, 4], [0, 1.204682444, 2.447149603, 3.728063212, 5.065745198, 5.768097617, 6.518745349, 7.313897871, 8.154576377, 9.046034033, 9.979646649, 10.965731253, 12], False, 3, [1, 1, 1, 1, 1, 1, 1, 1, 1, 1, 1, 1, 1, 1, 1], False),
    Part.BSplineCurve([V(0.5, 1.278067, 0), V(0.492172, 1.278049, 0), V(0.476609, 1.278012, 0), V(0.453503, 1.280712, 0), V(0.430682, 1.28478, 0), V(0.415993, 1.289492, 0), V(0.408627, 1.291855, 0)], [4, 1, 1, 1, 4], [0, 1.010600758, 2.009000657, 3.001600101, 4], False, 3, [1, 1, 1, 1, 1, 1, 1], False),
    Part.LineSegment(V(0.5, 1.278067, 0), V(0.5, 1.949781, 0)),
], False)
sketch7.addConstraint([
    Sketcher.Constraint("Block", 15),
    Sketcher.Constraint("Block", 17),
    Sketcher.Constraint("Block", 21),
    Sketcher.Constraint("Block", 22),
    Sketcher.Constraint("Block", 23),
    Sketcher.Constraint("Block", 24),
    Sketcher.Constraint("Block", 26),
    Sketcher.Constraint("Block", 27),
    Sketcher.Constraint("Block", 28),
    Sketcher.Constraint("Block", 29),
    Sketcher.Constraint("Block", 30),
    Sketcher.Constraint("Coincident", 0, 2, 1, 1),
    Sketcher.Constraint("Coincident", 1, 2, 2, 1),
    Sketcher.Constraint("Coincident", 2, 2, 3, 1),
    Sketcher.Constraint("Coincident", 3, 2, 4, 1),
    Sketcher.Constraint("Coincident", 4, 2, 5, 1),
    Sketcher.Constraint("Coincident", 5, 2, 6, 1),
    Sketcher.Constraint("Coincident", 6, 2, 7, 1),
    Sketcher.Constraint("Coincident", 7, 2, 8, 1),
    Sketcher.Constraint("Coincident", 8, 2, 9, 1),
    Sketcher.Constraint("Coincident", 9, 2, 10, 1),
    Sketcher.Constraint("Coincident", 10, 2, 11, 1),
    Sketcher.Constraint("Coincident", 11, 2, 0, 1),
    Sketcher.Constraint("Coincident", 12, 2, 13, 1),
    Sketcher.Constraint("Coincident", 13, 2, 14, 1),
    Sketcher.Constraint("Coincident", 14, 2, 15, 2),
    Sketcher.Constraint("Coincident", 15, 1, 16, 1),
    Sketcher.Constraint("Coincident", 16, 2, 17, 2),
    Sketcher.Constraint("Coincident", 17, 1, 18, 1),
    Sketcher.Constraint("Coincident", 18, 2, 12, 1),
    Sketcher.Constraint("Coincident", 19, 2, 20, 1),
    Sketcher.Constraint("Coincident", 20, 2, 21, 2),
    Sketcher.Constraint("Coincident", 24, 1, 25, 1),
    Sketcher.Constraint("Coincident", 25, 2, 26, 2),
    Sketcher.Constraint("Coincident", 30, 1, 31, 1),
    Sketcher.Constraint("Coincident", 31, 2, 19, 1),
    Sketcher.Constraint("Horizontal", 0),
    Sketcher.Constraint("Vertical", 1),
    Sketcher.Constraint("Horizontal", 2),
    Sketcher.Constraint("Vertical", 3),
    Sketcher.Constraint("Horizontal", 4),
    Sketcher.Constraint("Vertical", 5),
    Sketcher.Constraint("Horizontal", 6),
    Sketcher.Constraint("Vertical", 7),
    Sketcher.Constraint("Horizontal", 8),
    Sketcher.Constraint("Vertical", 9),
    Sketcher.Constraint("Horizontal", 10),
    Sketcher.Constraint("Vertical", 11),
    Sketcher.Constraint("Vertical", 12),
    Sketcher.Constraint("Horizontal", 13),
    Sketcher.Constraint("Vertical", 14),
    Sketcher.Constraint("Horizontal", 18),
    Sketcher.Constraint("Horizontal", 19),
    Sketcher.Constraint("Vertical", 20),
    Sketcher.Constraint("Vertical", 31),
    Sketcher.Constraint("Horizontal", 4, 2, 7, 2),
    Sketcher.Constraint("Vertical", 1, 2, 12, 2),
    Sketcher.Constraint("Vertical", 11, 2, 13, 2),
    Sketcher.Constraint("Vertical", 18, 2, 31, 2),
    Sketcher.Constraint("Equal", 2, 6),
    Sketcher.Constraint("Equal", 6, 10),
    Sketcher.Constraint("Equal", 19, 12),
    Sketcher.Constraint("DistanceX", 8, 2, 8, 1, Q("0.316101 mm")),
    Sketcher.Constraint("DistanceY", 1, 1, 1, 2, Q("0.750739 mm")),
    Sketcher.Constraint("DistanceY", 3, 2, 3, 1, Q("0.60586 mm")),
    Sketcher.Constraint("DistanceY", 9, 1, 9, 2, Q("0.579518 mm")),
    Sketcher.Constraint("DistanceY", 20, 2, 20, 1, Q("0.502551 mm")),
    Sketcher.Constraint("DistanceY", 9, 2, 12, 2, Q("0.632202 mm")),
    Sketcher.Constraint("DistanceX", 2, 2, 2, 1, Q("0.118538 mm")),
    Sketcher.Constraint("DistanceY", 5, 1, 5, 2, Q("0.540005 mm")),
])
pad5 = doc.addObject("PartDesign::Pad", "Pad004")
body.addObject(pad5)
pad5.Profile = sketch7
pad5.Length = 0.02

sketch8 = doc.addObject("Sketcher::SketchObject", "Sketch007")
body.addObject(sketch8)
sketch8.AttachmentSupport = (doc.XY_Plane, [""])
sketch8.MapMode = "FlatFace"
sketch8.AttachmentOffset = App.Placement(V(0, 0, 0.1), App.Rotation())
sketch8.addGeometry([
    Part.LineSegment(V(-0.6, -4.5, 0), V(-0.6, -1.6, 0)),
    Part.LineSegment(V(-0.6, -1.6, 0), V(0.6, -1.6, 0)),
    Part.LineSegment(V(0.6, -1.6, 0), V(0.6, -4.5, 0)),
    Part.LineSegment(V(0.6, -4.5, 0), V(-0.6, -4.5, 0)),
    Part.LineSegment(V(-0.6, 1.6, 0), V(-0.6, 4.5, 0)),
    Part.LineSegment(V(-0.6, 4.5, 0), V(0.6, 4.5, 0)),
    Part.LineSegment(V(0.6, 4.5, 0), V(0.6, 1.6, 0)),
    Part.LineSegment(V(0.6, 1.6, 0), V(-0.6, 1.6, 0)),
], False)
sketch8.addConstraint([
    Sketcher.Constraint("Coincident", 0, 2, 1, 1),
    Sketcher.Constraint("Coincident", 1, 2, 2, 1),
    Sketcher.Constraint("Coincident", 2, 2, 3, 1),
    Sketcher.Constraint("Coincident", 3, 2, 0, 1),
    Sketcher.Constraint("Coincident", 4, 2, 5, 1),
    Sketcher.Constraint("Coincident", 5, 2, 6, 1),
    Sketcher.Constraint("Coincident", 6, 2, 7, 1),
    Sketcher.Constraint("Coincident", 7, 2, 4, 1),
    Sketcher.Constraint("Vertical", 0),
    Sketcher.Constraint("Horizontal", 1),
    Sketcher.Constraint("Vertical", 2),
    Sketcher.Constraint("Horizontal", 3),
    Sketcher.Constraint("Vertical", 4),
    Sketcher.Constraint("Horizontal", 5),
    Sketcher.Constraint("Vertical", 6),
    Sketcher.Constraint("Horizontal", 7),
    Sketcher.Constraint("Symmetric", 2, 2, 4, 2, -1, 1),
    Sketcher.Constraint("Symmetric", 0, 2, 6, 2, -1, 1),
    Sketcher.Constraint("Vertical", 3, 2, 4, 2),
    Sketcher.Constraint("DistanceX", 1, 1, 1, 2, Q("1.1 mm")),
    Sketcher.Constraint("DistanceY", 0, 1, 0, 2, Q("2.9 mm")),
    Sketcher.Constraint("DistanceY", 3, 2, 4, 2, Q("9 mm")),
])
pad6 = doc.addObject("PartDesign::Pad", "Pad005")
body.addObject(pad6)
pad6.Profile = sketch8
pad6.Length = 0.25
pad6.Reversed = True

doc.recompute()
